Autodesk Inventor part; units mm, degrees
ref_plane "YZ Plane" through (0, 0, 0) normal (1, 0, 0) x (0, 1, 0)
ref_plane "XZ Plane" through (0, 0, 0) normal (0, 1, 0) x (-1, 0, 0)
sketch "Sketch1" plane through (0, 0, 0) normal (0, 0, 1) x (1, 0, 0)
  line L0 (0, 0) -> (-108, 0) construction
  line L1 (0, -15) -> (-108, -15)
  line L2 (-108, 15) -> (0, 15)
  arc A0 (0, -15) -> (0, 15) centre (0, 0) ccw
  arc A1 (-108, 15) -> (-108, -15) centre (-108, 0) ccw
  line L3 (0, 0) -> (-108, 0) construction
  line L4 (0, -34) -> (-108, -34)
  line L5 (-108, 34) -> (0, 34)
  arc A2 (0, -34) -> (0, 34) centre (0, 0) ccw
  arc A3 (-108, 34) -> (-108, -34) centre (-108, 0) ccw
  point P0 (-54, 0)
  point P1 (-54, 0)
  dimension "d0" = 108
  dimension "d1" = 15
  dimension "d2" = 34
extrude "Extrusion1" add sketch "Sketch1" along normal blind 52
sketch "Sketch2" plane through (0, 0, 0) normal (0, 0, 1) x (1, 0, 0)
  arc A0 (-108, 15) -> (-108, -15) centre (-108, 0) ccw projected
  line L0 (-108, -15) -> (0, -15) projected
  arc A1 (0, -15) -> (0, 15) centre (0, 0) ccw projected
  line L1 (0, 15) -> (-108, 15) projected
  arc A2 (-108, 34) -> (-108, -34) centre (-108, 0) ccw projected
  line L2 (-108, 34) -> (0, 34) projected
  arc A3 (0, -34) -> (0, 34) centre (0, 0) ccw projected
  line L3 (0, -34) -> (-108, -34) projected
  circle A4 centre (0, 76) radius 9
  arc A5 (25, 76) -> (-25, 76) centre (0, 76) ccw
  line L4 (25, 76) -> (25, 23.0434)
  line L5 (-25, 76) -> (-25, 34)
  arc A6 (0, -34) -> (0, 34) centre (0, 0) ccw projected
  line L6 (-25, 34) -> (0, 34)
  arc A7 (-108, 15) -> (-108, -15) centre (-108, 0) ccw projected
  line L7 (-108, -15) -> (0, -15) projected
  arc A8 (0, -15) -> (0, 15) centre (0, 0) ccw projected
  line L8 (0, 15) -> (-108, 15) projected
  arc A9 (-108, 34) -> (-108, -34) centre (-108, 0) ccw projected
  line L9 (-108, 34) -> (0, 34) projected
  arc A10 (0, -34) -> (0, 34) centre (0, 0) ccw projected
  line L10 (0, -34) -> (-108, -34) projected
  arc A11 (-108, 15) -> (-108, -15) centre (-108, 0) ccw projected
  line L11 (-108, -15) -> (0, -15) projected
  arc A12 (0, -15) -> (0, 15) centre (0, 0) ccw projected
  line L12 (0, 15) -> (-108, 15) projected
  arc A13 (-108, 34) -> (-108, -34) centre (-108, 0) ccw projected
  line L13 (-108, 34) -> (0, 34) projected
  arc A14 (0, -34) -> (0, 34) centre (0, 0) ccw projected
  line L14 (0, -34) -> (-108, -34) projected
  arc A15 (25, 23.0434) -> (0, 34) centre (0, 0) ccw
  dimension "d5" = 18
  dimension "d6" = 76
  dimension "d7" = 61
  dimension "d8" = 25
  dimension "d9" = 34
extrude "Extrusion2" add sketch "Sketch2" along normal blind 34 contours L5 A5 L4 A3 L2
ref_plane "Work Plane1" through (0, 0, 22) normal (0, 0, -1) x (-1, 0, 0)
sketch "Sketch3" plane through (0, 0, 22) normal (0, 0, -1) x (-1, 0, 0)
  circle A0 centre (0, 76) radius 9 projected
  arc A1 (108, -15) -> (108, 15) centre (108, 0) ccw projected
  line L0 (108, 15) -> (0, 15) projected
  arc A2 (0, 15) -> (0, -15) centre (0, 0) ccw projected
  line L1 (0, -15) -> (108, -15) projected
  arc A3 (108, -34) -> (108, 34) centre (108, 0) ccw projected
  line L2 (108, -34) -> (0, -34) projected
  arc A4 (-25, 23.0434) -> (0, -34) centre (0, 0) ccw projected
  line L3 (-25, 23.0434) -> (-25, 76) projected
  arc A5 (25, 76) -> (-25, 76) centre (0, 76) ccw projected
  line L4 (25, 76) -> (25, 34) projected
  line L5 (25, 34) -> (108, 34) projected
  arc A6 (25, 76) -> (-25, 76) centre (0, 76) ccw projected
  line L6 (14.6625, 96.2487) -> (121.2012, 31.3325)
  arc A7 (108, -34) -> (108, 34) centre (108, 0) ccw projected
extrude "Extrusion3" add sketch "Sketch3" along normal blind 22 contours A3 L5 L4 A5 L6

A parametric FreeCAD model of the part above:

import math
import FreeCAD as App
import Part
import Sketcher

V = App.Vector
Q = App.Units.Quantity

doc = App.newDocument("Part")
body = doc.addObject("PartDesign::Body", "Body")

sketch1 = body.newObject("Sketcher::SketchObject", "Sketch")
sketch1.AttachmentSupport = (doc.getObject("XY_Plane"), [""])
sketch1.MapMode = "FlatFace"
sketch1.addGeometry([
    Part.LineSegment(V(-108, -34, 0), V(0, -34, 0)),
    Part.ArcOfCircle(Part.Circle(V(0, 0, 0), V(0, 0, 1), 34), math.radians(-90), math.radians(90)),
    Part.LineSegment(V(0, 34, 0), V(-108, 34, 0)),
    Part.ArcOfCircle(Part.Circle(V(-108, 0, 0), V(0, 0, 1), 34), math.radians(90), math.radians(270)),
    Part.ArcOfCircle(Part.Circle(V(0, 0, 0), V(0, 0, 1), 15), math.radians(-90), math.radians(90)),
    Part.LineSegment(V(0, -15, 0), V(-108, -15, 0)),
    Part.ArcOfCircle(Part.Circle(V(-108, 0, 0), V(0, 0, 1), 15), math.radians(90), math.radians(270)),
    Part.LineSegment(V(-108, 15, 0), V(0, 15, 0)),
], False)
sketch1.addConstraint([
    Sketcher.Constraint("Tangent", 0, 2, 1, 1),
    Sketcher.Constraint("Tangent", 1, 2, 2, 1),
    Sketcher.Constraint("Tangent", 2, 2, 3, 1),
    Sketcher.Constraint("Tangent", 3, 2, 0, 1),
    Sketcher.Constraint("Tangent", 4, 1, 5, 1),
    Sketcher.Constraint("Tangent", 5, 2, 6, 2),
    Sketcher.Constraint("Tangent", 6, 1, 7, 1),
    Sketcher.Constraint("Tangent", 7, 2, 4, 2),
    Sketcher.Constraint("Horizontal", 0),
    Sketcher.Constraint("Horizontal", 2),
    Sketcher.Constraint("Horizontal", 5),
    Sketcher.Constraint("Horizontal", 7),
    Sketcher.Constraint("Coincident", 1, 3, -1, 1),
    Sketcher.Constraint("Coincident", 4, 3, -1, 1),
    Sketcher.Constraint("Vertical", 6, 3, 2, 2),
    Sketcher.Constraint("Radius", 1, Q("34 mm")),
    Sketcher.Constraint("Radius", 4, Q("15 mm")),
    Sketcher.Constraint("DistanceX", 0, 1, 0, 2, Q("108 mm")),
])
pad1 = body.newObject("PartDesign::Pad", "Pad")
pad1.Profile = sketch1
pad1.Length = 52

sketch2 = body.newObject("Sketcher::SketchObject", "Sketch001")
sketch2.AttachmentSupport = (doc.getObject("XY_Plane"), [""])
sketch2.MapMode = "FlatFace"
sketch2.addGeometry([
    Part.LineSegment(V(-25, 76, 0), V(-25, 34, 0)),
    Part.LineSegment(V(-25, 34, 0), V(0, 34, 0)),
    Part.ArcOfCircle(Part.Circle(V(0, 0, 0), V(0, 0, 1), 34), math.radians(43), math.radians(90)),
    Part.LineSegment(V(25, 23, 0), V(25, 76, 0)),
    Part.ArcOfCircle(Part.Circle(V(0, 76, 0), V(0, 0, 1), 25), math.radians(0), math.radians(180)),
    Part.Circle(V(0, 76, 0), V(0, 0, 1), 9),
], False)
sketch2.addConstraint([
    Sketcher.Constraint("Coincident", 0, 2, 1, 1),
    Sketcher.Constraint("Tangent", 1, 2, 2, 2),
    Sketcher.Constraint("Coincident", 2, 1, 3, 1),
    Sketcher.Constraint("Tangent", 3, 2, 4, 1),
    Sketcher.Constraint("Tangent", 4, 2, 0, 1),
    Sketcher.Constraint("Vertical", 0),
    Sketcher.Constraint("Horizontal", 1),
    Sketcher.Constraint("Vertical", 3),
    Sketcher.Constraint("Coincident", 2, 3, -1, 1),
    Sketcher.Constraint("Coincident", 5, 3, 4, 3),
    Sketcher.Constraint("PointOnObject", 4, 3, -2),
    Sketcher.Constraint("Diameter", 5, Q("18 mm")),
    Sketcher.Constraint("Radius", 2, Q("34 mm")),
    Sketcher.Constraint("Radius", 4, Q("25 mm")),
    Sketcher.Constraint("DistanceY", -1, 1, 4, 3, Q("76 mm")),
])
pad2 = body.newObject("PartDesign::Pad", "Pad001")
pad2.Profile = sketch2
pad2.Length = 34

sketch3 = body.newObject("Sketcher::SketchObject", "Sketch002")
sketch3.AttachmentSupport = (doc.getObject("XY_Plane"), [""])
sketch3.MapMode = "FlatFace"
sketch3.AttachmentOffset = App.Placement(V(0, 0, 22), App.Rotation())
sketch3.addGeometry([
    Part.ArcOfCircle(Part.Circle(V(-108, 0, 0), V(0, 0, 1), 34), math.radians(90), math.radians(113)),
    Part.LineSegment(V(-121, 31, 0), V(-15, 96, 0)),
    Part.ArcOfCircle(Part.Circle(V(0, 76, 0), V(0, 0, 1), 25), math.radians(126), math.radians(180)),
    Part.LineSegment(V(-25, 76, 0), V(-25, 34, 0)),
    Part.LineSegment(V(-25, 34, 0), V(-108, 34, 0)),
], False)
sketch3.addConstraint([
    Sketcher.Constraint("Coincident", 0, 2, 1, 1),
    Sketcher.Constraint("Coincident", 1, 2, 2, 1),
    Sketcher.Constraint("Tangent", 2, 2, 3, 1),
    Sketcher.Constraint("Coincident", 3, 2, 4, 1),
    Sketcher.Constraint("Tangent", 4, 2, 0, 1),
    Sketcher.Constraint("Vertical", 3),
    Sketcher.Constraint("Horizontal", 4),
    Sketcher.Constraint("PointOnObject", 0, 3, -1),
    Sketcher.Constraint("PointOnObject", 2, 3, -2),
    Sketcher.Constraint("Radius", 0, Q("34 mm")),
    Sketcher.Constraint("Radius", 2, Q("25 mm")),
    Sketcher.Constraint("DistanceX", 4, 2, 4, 1, Q("83 mm")),
    Sketcher.Constraint("DistanceY", 3, 2, 3, 1, Q("42 mm")),
    Sketcher.Constraint("Distance", 1, Q("124.7582 mm")),
    Sketcher.Constraint("DistanceX", 0, 2, -1, 1, Q("121.2012 mm")),
])
pad3 = body.newObject("PartDesign::Pad", "Pad002")
pad3.Profile = sketch3
pad3.Length = 22
pad3.Reversed = True

doc.recompute()
